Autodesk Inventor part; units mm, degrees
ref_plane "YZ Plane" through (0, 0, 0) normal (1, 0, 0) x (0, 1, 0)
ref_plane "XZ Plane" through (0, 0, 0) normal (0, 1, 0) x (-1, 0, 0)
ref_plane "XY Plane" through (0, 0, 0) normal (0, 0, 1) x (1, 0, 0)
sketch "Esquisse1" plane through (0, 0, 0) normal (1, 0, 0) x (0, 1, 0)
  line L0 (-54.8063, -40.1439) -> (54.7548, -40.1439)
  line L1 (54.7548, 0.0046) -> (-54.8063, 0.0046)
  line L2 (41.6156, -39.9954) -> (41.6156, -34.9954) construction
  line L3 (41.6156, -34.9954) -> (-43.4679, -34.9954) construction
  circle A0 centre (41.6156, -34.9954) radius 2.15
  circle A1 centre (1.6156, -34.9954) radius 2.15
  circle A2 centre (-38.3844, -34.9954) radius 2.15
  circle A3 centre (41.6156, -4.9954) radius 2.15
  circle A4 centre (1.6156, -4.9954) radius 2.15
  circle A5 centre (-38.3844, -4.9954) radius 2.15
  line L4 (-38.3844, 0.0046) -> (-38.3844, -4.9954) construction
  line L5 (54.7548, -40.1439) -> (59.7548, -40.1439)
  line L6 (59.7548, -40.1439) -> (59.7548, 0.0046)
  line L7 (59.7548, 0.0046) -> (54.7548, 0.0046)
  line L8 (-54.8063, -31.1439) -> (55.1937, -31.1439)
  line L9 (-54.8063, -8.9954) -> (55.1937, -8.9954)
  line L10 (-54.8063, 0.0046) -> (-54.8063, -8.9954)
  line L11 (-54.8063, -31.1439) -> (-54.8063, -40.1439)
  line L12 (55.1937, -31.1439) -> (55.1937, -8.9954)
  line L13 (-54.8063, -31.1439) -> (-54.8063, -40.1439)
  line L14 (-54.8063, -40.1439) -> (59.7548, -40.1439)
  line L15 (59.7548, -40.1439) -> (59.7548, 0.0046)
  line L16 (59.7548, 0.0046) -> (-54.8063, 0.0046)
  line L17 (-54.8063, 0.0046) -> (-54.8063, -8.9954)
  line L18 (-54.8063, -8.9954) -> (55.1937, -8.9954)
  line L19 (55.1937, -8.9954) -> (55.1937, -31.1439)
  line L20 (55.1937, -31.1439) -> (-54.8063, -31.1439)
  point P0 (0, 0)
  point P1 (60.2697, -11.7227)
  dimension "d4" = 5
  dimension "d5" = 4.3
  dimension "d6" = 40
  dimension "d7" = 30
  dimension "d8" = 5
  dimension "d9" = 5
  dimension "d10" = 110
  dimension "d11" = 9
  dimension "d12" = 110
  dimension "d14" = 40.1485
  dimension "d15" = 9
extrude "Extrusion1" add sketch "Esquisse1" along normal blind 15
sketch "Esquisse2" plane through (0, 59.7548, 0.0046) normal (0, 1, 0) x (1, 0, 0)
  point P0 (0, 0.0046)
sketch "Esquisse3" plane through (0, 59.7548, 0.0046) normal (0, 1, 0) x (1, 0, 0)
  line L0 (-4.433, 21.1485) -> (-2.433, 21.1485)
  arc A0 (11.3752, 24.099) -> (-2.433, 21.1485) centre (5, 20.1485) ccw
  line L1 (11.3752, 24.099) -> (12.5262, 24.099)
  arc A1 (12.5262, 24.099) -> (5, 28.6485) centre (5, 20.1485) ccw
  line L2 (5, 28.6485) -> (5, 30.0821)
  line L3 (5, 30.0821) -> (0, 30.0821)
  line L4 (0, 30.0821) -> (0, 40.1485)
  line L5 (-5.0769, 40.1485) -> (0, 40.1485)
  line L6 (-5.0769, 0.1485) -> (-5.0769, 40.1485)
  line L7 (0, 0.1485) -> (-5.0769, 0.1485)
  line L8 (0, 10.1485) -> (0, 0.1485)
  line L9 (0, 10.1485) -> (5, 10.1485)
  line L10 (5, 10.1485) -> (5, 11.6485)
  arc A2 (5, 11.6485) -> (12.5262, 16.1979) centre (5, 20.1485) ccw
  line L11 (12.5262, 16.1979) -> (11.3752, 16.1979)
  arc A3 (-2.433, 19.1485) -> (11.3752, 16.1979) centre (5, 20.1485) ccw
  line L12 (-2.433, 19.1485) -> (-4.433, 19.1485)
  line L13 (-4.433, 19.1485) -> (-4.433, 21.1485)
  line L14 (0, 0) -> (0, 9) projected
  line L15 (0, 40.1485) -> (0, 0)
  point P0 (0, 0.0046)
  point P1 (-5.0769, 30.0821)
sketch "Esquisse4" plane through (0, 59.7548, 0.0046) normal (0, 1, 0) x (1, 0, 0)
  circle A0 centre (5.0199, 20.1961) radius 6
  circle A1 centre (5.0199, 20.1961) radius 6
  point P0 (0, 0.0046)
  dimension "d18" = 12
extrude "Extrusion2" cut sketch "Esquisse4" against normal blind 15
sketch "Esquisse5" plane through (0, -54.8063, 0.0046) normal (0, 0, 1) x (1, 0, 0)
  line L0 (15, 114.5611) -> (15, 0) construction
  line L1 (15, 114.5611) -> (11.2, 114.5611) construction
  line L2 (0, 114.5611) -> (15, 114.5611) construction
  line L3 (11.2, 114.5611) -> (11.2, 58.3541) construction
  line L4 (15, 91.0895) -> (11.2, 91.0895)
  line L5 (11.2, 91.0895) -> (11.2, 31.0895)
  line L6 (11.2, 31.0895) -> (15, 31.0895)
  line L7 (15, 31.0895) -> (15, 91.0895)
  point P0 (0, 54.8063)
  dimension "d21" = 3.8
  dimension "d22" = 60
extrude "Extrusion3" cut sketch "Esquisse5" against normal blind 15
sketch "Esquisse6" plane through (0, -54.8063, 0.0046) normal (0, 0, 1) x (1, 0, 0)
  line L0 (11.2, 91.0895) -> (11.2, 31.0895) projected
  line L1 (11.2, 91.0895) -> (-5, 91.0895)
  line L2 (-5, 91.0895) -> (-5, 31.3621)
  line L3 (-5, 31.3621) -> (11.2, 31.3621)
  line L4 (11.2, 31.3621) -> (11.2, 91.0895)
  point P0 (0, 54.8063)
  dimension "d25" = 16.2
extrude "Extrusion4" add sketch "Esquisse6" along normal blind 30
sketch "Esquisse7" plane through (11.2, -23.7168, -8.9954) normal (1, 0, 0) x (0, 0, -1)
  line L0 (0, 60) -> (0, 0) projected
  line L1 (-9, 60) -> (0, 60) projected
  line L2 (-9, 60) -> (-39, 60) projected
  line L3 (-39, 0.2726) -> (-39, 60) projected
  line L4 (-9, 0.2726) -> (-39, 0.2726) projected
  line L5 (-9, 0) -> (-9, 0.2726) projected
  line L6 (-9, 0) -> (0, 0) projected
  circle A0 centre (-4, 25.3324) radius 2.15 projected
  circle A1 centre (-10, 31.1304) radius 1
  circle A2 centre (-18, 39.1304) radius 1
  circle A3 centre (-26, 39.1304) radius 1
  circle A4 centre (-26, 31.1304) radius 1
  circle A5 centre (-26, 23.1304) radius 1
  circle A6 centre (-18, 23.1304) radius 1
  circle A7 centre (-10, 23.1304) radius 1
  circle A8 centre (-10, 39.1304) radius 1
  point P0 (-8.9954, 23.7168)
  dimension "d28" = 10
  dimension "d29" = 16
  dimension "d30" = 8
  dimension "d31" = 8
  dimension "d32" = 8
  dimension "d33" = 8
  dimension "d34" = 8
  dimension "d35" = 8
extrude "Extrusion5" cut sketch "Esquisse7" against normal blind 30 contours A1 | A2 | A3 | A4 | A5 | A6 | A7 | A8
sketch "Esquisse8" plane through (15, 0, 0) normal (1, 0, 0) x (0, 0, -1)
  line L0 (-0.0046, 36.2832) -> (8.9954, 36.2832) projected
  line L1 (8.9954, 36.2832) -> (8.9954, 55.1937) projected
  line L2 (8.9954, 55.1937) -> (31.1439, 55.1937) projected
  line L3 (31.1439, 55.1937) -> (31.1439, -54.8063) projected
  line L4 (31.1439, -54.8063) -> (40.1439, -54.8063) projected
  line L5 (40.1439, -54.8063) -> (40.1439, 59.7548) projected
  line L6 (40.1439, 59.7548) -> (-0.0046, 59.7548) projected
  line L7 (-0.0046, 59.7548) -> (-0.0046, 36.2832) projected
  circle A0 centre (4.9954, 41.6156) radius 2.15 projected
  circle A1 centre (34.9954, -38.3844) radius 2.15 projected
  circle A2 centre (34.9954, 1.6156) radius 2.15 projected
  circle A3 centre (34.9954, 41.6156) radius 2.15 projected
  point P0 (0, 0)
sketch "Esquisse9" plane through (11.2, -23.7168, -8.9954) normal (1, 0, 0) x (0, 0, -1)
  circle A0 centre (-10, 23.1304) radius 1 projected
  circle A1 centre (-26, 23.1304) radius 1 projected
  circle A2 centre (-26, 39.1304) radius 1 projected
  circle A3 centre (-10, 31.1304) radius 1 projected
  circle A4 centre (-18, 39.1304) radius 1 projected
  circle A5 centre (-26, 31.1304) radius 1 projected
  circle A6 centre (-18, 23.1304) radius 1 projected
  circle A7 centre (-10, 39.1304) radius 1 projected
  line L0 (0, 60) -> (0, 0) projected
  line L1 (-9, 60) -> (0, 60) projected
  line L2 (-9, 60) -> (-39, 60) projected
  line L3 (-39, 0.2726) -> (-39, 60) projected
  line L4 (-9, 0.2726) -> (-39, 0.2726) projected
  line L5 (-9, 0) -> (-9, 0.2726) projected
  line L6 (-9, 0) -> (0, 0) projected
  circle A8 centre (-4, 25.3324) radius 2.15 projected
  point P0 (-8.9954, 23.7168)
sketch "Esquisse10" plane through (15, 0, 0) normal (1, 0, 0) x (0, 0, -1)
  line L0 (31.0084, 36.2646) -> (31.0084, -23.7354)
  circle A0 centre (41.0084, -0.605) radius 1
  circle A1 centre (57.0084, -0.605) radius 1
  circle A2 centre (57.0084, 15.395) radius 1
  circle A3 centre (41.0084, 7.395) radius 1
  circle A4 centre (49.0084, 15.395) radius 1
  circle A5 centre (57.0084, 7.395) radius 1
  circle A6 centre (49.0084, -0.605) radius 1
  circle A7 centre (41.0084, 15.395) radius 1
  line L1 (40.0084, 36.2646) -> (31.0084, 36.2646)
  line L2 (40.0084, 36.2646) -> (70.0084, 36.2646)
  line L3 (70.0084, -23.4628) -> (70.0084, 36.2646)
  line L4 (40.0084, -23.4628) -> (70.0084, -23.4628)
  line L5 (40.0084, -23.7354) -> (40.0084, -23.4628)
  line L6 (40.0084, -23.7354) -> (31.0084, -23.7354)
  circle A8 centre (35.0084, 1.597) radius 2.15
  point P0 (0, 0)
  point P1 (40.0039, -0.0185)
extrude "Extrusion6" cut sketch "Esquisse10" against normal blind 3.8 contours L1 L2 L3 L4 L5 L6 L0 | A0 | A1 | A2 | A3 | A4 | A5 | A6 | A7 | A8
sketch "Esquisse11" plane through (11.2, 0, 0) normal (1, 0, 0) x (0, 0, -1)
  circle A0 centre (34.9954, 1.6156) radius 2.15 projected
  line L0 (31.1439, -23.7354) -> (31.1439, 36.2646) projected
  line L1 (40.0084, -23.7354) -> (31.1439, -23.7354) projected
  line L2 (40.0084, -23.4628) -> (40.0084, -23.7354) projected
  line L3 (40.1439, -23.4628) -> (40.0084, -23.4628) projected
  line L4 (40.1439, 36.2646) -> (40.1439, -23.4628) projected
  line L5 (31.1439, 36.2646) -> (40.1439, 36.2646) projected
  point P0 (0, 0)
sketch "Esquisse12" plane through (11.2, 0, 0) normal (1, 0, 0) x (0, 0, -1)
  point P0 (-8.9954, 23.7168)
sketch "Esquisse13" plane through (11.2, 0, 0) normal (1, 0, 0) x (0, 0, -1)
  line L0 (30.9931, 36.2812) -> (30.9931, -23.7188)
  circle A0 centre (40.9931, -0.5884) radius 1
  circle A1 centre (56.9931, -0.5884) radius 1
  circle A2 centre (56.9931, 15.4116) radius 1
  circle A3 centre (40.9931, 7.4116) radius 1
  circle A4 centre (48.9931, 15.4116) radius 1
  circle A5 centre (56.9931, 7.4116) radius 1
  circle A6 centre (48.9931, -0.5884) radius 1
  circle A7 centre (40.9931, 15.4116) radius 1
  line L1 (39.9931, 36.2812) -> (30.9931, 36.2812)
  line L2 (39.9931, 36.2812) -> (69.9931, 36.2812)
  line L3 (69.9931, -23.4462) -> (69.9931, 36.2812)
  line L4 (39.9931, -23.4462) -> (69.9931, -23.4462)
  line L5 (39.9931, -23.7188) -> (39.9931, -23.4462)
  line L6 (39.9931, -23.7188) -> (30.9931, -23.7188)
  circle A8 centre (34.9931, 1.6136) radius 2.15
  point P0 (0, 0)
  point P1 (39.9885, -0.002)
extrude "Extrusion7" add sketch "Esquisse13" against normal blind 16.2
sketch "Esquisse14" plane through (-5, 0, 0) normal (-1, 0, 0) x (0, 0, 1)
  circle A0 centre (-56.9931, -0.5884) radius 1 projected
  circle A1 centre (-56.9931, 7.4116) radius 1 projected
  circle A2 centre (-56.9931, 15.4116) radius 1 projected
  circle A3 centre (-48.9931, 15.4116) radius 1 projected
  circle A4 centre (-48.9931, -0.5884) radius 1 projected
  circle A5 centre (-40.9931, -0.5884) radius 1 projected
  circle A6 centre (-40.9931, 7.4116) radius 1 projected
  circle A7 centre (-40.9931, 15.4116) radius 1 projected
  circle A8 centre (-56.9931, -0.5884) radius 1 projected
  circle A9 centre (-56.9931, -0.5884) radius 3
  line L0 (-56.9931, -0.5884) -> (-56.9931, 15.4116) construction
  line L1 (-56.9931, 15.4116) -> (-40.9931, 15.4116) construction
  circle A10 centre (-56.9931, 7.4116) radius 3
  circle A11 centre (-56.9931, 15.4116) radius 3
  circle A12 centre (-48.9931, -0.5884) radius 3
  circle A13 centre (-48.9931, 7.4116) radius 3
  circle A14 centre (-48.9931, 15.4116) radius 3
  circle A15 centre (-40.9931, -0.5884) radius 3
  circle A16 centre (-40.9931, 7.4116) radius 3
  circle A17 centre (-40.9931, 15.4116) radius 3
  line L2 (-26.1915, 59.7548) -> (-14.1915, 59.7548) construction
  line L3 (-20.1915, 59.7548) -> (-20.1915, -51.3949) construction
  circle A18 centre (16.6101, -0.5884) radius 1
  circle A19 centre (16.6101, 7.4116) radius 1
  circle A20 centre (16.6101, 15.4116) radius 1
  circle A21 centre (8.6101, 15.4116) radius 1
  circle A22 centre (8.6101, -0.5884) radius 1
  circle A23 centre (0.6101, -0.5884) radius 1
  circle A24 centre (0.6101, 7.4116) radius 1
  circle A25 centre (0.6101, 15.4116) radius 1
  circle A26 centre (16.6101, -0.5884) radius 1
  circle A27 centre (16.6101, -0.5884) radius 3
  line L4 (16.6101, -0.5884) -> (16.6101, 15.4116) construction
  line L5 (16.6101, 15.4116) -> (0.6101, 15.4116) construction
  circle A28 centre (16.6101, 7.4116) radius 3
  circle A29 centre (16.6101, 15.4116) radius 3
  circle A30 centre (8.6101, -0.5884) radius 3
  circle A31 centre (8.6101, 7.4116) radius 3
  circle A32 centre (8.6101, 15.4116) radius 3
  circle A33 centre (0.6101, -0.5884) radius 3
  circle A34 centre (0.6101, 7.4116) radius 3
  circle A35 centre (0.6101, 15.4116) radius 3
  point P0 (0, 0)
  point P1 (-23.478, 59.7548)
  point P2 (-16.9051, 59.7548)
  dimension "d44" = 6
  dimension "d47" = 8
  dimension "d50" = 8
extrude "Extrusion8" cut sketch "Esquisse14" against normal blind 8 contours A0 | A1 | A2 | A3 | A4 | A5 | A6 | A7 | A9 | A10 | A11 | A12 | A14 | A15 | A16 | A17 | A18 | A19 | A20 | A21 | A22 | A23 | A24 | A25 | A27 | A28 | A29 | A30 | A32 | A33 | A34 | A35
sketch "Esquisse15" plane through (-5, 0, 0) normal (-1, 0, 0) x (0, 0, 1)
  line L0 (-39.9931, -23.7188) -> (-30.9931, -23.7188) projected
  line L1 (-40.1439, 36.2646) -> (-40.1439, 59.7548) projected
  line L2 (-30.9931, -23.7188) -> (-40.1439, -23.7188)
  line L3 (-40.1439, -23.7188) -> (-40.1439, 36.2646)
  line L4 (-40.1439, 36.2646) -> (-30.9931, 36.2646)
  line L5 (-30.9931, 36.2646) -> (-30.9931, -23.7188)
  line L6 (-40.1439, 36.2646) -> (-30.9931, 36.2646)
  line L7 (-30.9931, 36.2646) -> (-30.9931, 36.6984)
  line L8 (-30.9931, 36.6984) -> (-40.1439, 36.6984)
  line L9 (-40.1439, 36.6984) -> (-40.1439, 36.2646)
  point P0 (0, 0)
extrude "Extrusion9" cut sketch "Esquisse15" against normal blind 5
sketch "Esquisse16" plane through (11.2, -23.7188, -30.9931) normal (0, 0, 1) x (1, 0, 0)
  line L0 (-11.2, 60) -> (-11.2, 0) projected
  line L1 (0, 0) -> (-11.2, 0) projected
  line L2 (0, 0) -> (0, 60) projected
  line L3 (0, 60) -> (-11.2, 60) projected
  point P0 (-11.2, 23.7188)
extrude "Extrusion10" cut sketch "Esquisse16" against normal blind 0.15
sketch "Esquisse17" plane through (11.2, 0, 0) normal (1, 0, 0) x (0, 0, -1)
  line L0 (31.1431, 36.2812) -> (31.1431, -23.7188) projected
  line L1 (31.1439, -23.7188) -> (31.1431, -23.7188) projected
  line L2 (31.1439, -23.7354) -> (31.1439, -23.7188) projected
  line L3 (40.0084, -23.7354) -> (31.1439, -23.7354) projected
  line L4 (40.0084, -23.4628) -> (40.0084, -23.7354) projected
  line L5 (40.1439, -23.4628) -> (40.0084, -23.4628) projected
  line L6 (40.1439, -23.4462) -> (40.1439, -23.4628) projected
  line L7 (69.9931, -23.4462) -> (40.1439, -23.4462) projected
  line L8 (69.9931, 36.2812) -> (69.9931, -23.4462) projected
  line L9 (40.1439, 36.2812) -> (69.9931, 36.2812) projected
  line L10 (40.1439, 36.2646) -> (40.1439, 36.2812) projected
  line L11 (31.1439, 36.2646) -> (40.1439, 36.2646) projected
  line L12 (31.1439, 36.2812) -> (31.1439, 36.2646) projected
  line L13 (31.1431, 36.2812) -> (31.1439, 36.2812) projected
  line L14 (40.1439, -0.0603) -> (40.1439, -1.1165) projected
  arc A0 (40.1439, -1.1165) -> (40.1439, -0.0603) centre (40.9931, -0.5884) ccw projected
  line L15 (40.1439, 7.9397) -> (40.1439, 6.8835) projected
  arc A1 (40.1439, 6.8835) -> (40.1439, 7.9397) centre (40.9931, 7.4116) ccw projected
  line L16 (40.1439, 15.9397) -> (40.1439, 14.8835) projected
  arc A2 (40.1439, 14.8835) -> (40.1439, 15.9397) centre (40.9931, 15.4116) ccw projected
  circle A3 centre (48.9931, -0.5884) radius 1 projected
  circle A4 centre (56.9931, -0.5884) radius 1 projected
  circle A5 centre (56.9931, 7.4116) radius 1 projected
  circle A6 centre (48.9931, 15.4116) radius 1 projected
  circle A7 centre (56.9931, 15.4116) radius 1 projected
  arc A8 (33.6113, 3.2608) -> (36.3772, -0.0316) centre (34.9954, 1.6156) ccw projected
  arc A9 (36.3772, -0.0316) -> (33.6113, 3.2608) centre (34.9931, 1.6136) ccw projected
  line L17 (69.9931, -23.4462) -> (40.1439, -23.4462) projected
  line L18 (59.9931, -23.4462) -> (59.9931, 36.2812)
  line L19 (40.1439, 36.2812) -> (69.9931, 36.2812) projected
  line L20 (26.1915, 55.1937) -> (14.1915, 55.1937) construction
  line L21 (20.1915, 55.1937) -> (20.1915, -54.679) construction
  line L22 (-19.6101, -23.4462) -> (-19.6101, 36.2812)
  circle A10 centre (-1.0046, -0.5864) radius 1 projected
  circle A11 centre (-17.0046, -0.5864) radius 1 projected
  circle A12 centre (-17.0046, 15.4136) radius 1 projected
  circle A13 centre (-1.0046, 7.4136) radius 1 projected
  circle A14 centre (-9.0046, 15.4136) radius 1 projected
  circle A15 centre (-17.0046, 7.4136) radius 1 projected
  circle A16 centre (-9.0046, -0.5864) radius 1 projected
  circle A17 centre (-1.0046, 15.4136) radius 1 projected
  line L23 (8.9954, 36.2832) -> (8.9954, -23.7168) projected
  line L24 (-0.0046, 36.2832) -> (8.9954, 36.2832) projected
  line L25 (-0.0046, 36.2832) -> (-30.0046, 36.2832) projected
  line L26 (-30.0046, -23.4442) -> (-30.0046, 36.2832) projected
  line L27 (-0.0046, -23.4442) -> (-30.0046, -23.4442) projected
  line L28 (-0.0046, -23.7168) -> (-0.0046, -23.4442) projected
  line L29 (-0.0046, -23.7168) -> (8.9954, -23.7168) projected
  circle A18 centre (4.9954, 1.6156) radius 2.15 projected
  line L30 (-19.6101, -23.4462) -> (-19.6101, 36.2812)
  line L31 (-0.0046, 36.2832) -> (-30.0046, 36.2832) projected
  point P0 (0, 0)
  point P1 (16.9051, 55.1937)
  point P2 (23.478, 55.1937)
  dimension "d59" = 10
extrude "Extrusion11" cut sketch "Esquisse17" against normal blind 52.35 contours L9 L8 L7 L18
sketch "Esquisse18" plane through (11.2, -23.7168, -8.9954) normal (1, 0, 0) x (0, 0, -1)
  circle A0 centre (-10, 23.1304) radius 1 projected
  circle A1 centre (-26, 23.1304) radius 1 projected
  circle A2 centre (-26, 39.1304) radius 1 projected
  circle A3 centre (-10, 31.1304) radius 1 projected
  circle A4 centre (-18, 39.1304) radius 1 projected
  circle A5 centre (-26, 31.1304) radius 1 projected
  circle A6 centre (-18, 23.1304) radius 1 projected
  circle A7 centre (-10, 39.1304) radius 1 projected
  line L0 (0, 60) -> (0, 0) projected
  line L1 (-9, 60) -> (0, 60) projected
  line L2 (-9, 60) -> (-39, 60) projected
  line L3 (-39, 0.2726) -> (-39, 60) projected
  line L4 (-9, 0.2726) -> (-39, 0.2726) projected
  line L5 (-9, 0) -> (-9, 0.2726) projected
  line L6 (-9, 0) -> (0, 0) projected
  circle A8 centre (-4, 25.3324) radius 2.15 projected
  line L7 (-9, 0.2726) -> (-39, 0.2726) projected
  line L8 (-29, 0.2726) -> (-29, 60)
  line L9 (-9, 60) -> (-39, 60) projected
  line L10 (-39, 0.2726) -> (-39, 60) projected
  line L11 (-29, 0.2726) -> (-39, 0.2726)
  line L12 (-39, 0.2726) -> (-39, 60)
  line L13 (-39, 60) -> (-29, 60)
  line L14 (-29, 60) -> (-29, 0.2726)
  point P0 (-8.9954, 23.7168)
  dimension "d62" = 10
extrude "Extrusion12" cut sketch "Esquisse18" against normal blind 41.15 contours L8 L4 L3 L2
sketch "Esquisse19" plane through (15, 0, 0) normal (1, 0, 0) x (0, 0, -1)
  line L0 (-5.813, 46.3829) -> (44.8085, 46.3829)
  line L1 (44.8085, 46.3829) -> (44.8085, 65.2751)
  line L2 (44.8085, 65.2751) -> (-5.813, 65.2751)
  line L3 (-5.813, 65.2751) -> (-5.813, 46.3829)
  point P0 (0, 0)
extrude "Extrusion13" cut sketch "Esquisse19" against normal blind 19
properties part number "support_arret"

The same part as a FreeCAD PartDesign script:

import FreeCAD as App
import Part
import Sketcher

doc = App.newDocument("Part")
params = doc.addObject("Spreadsheet::Sheet", "Params")
for row, (alias, value) in enumerate([
    ("sketch1_diameter", "4.3 mm"),
    ("sketch1_width", "110 mm"),
    ("sketch1_height", "9 mm"),
    ("pad1_length", "15 mm"),
    ("sketch2_diameter", "12 mm"),
    ("pocket1_length", "15 mm"),
    ("sketch3_height", "60 mm"),
    ("sketch3_width", "3.8 mm"),
    ("pocket2_length", "15 mm"),
    ("sketch4_width", "16.2 mm"),
    ("pad2_length", "30 mm"),
    ("sketch5_diameter", "2 mm"),
    ("pocket3_length", "30 mm"),
    ("sketch6_width", "60 mm"),
    ("sketch6_height", "9 mm"),
    ("sketch6_height2", "30 mm"),
    ("pocket4_length", "3.8 mm"),
    ("sketch7_diameter", "2 mm"),
    ("sketch7_diameter2", "4.3 mm"),
    ("sketch7_width", "60 mm"),
    ("sketch7_height", "39 mm"),
    ("sketch7_height2", "9 mm"),
    ("pad3_length", "16.2 mm"),
    ("sketch8_diameter", "6 mm"),
    ("pocket5_length", "8 mm"),
    ("pocket6_length", "5 mm"),
    ("sketch10_height", "60 mm"),
    ("sketch10_width", "11.2 mm"),
    ("pocket7_length", "0.15 mm"),
    ("sketch11_height", "10 mm"),
    ("pocket8_length", "52.35 mm"),
    ("sketch12_height", "10 mm"),
    ("pocket9_length", "41.15 mm"),
    ("pocket10_length", "19 mm"),
], start=1):
    params.set(f"A{row}", alias)
    params.set(f"B{row}", "=" + value)
    params.setAlias(f"B{row}", alias)

body = doc.addObject("PartDesign::Body", "Body")
body.AllowCompound = True

sketch1 = body.newObject("Sketcher::SketchObject", "Sketch")
sketch1.AttachmentSupport = (doc.getObject("YZ_Plane"), [""])
sketch1.MapMode = "FlatFace"
sketch1.addGeometry(Part.LineSegment(App.Vector(-54.8063, -31.1439, 0), App.Vector(-54.8063, -40.1439, 0)), False)
sketch1.addGeometry(Part.LineSegment(App.Vector(-54.8063, -40.1439, 0), App.Vector(59.7548, -40.1439, 0)), False)
sketch1.addGeometry(Part.LineSegment(App.Vector(59.7548, -40.1439, 0), App.Vector(59.7548, 0.0046, 0)), False)
sketch1.addGeometry(Part.LineSegment(App.Vector(59.7548, 0.0046, 0), App.Vector(-54.8063, 0.0046, 0)), False)
sketch1.addGeometry(Part.LineSegment(App.Vector(-54.8063, 0.0046, 0), App.Vector(-54.8063, -8.9954, 0)), False)
sketch1.addGeometry(Part.LineSegment(App.Vector(-54.8063, -8.9954, 0), App.Vector(55.1937, -8.9954, 0)), False)
sketch1.addGeometry(Part.LineSegment(App.Vector(55.1937, -8.9954, 0), App.Vector(55.1937, -31.1439, 0)), False)
sketch1.addGeometry(Part.LineSegment(App.Vector(55.1937, -31.1439, 0), App.Vector(-54.8063, -31.1439, 0)), False)
sketch1.addGeometry(Part.Circle(App.Vector(-38.3844, -34.9954, 0), App.Vector(0, 0, 1), 2.15), False)
sketch1.addGeometry(Part.Circle(App.Vector(1.6156, -34.9954, 0), App.Vector(0, 0, 1), 2.15), False)
sketch1.addGeometry(Part.Circle(App.Vector(41.6156, -34.9954, 0), App.Vector(0, 0, 1), 2.15), False)
sketch1.addGeometry(Part.Circle(App.Vector(-38.3844, -4.9954, 0), App.Vector(0, 0, 1), 2.15), False)
sketch1.addGeometry(Part.Circle(App.Vector(1.6156, -4.9954, 0), App.Vector(0, 0, 1), 2.15), False)
sketch1.addGeometry(Part.Circle(App.Vector(41.6156, -4.9954, 0), App.Vector(0, 0, 1), 2.15), False)
sketch1.addConstraint(Sketcher.Constraint("Coincident", 0, 2, 1, 1))
sketch1.addConstraint(Sketcher.Constraint("Coincident", 1, 2, 2, 1))
sketch1.addConstraint(Sketcher.Constraint("Coincident", 2, 2, 3, 1))
sketch1.addConstraint(Sketcher.Constraint("Coincident", 3, 2, 4, 1))
sketch1.addConstraint(Sketcher.Constraint("Coincident", 4, 2, 5, 1))
sketch1.addConstraint(Sketcher.Constraint("Coincident", 5, 2, 6, 1))
sketch1.addConstraint(Sketcher.Constraint("Coincident", 6, 2, 7, 1))
sketch1.addConstraint(Sketcher.Constraint("Coincident", 7, 2, 0, 1))
sketch1.addConstraint(Sketcher.Constraint("Vertical", 0))
sketch1.addConstraint(Sketcher.Constraint("Horizontal", 1))
sketch1.addConstraint(Sketcher.Constraint("Vertical", 2))
sketch1.addConstraint(Sketcher.Constraint("Horizontal", 3))
sketch1.addConstraint(Sketcher.Constraint("Vertical", 4))
sketch1.addConstraint(Sketcher.Constraint("Horizontal", 5))
sketch1.addConstraint(Sketcher.Constraint("Vertical", 6))
sketch1.addConstraint(Sketcher.Constraint("Horizontal", 7))
sketch1.addConstraint(Sketcher.Constraint("Equal", 8, 9))
sketch1.addConstraint(Sketcher.Constraint("Equal", 9, 10))
sketch1.addConstraint(Sketcher.Constraint("Equal", 10, 11))
sketch1.addConstraint(Sketcher.Constraint("Equal", 11, 12))
sketch1.addConstraint(Sketcher.Constraint("Equal", 12, 13))
sketch1.addConstraint(Sketcher.Constraint("Horizontal", 8, 3, 9, 3))
sketch1.addConstraint(Sketcher.Constraint("Horizontal", 9, 3, 10, 3))
sketch1.addConstraint(Sketcher.Constraint("Horizontal", 11, 3, 12, 3))
sketch1.addConstraint(Sketcher.Constraint("Horizontal", 12, 3, 13, 3))
sketch1.addConstraint(Sketcher.Constraint("Vertical", 8, 3, 11, 3))
sketch1.addConstraint(Sketcher.Constraint("Vertical", 9, 3, 12, 3))
sketch1.addConstraint(Sketcher.Constraint("Vertical", 10, 3, 13, 3))
sketch1.addConstraint(Sketcher.Constraint("Vertical", 0, 2, 3, 2))
sketch1.addConstraint(Sketcher.Constraint("Equal", 0, 4))
sketch1.addConstraint(Sketcher.Constraint("Diameter", 8, 4.3))
sketch1.addConstraint(Sketcher.Constraint("DistanceX", 5, 1, 5, 2, 110.0))
sketch1.addConstraint(Sketcher.Constraint("DistanceY", 0, 2, 0, 1, 9.0))
sketch1.addConstraint(Sketcher.Constraint("DistanceX", 8, 3, 9, 3, 40.0))
sketch1.addConstraint(Sketcher.Constraint("DistanceX", 9, 3, 10, 3, 40.0))
sketch1.addConstraint(Sketcher.Constraint("DistanceY", 8, 3, 11, 3, 30.0))
sketch1.addConstraint(Sketcher.Constraint("DistanceY", 13, 3, 2, 2, 5.0))
sketch1.addConstraint(Sketcher.Constraint("DistanceY", 2, 1, 2, 2, 40.1485))
sketch1.addConstraint(Sketcher.Constraint("DistanceX", 1, 1, 1, 2, 114.561))
sketch1.addConstraint(Sketcher.Constraint("DistanceY", 0, 2, -1, 1, 40.144))
sketch1.addConstraint(Sketcher.Constraint("DistanceX", 0, 2, 8, 3, 16.422))
sketch1.addConstraint(Sketcher.Constraint("DistanceX", 8, 3, -1, 1, 38.3844))
sketch1.setExpression("Constraints[30]", "Params.sketch1_diameter")
sketch1.setExpression("Constraints[31]", "Params.sketch1_width")
sketch1.setExpression("Constraints[32]", "Params.sketch1_height")
pad1 = body.newObject("PartDesign::Pad", "Pad")
pad1.Profile = sketch1
pad1.setExpression("Length", "Params.pad1_length")

sketch2 = body.newObject("Sketcher::SketchObject", "Sketch001")
sketch2.AttachmentSupport = (doc.getObject("XZ_Plane"), [""])
sketch2.MapMode = "FlatFace"
sketch2.AttachmentOffset = App.Placement(App.Vector(0, 0, -59.7548), App.Rotation())
sketch2.addGeometry(Part.Circle(App.Vector(5.0199, -20.1915, 0), App.Vector(0, 0, 1), 6), False)
sketch2.addConstraint(Sketcher.Constraint("Diameter", 0, 12.0))
sketch2.addConstraint(Sketcher.Constraint("DistanceX", -1, 1, 0, 3, 5.02))
sketch2.addConstraint(Sketcher.Constraint("DistanceY", 0, 3, -1, 1, 20.1915))
sketch2.setExpression("Constraints[0]", "Params.sketch2_diameter")
pocket1 = body.newObject("PartDesign::Pocket", "Pocket")
pocket1.Profile = sketch2
pocket1.setExpression("Length", "Params.pocket1_length")
pocket1.Reversed = True

sketch3 = body.newObject("Sketcher::SketchObject", "Sketch002")
sketch3.AttachmentSupport = (doc.getObject("XY_Plane"), [""])
sketch3.MapMode = "FlatFace"
sketch3.AttachmentOffset = App.Placement(App.Vector(0, 0, 0.0046), App.Rotation())
sketch3.addGeometry(Part.LineSegment(App.Vector(15, -23.7168, 0), App.Vector(15, 36.2832, 0)), False)
sketch3.addGeometry(Part.LineSegment(App.Vector(15, 36.2832, 0), App.Vector(11.2, 36.2832, 0)), False)
sketch3.addGeometry(Part.LineSegment(App.Vector(11.2, 36.2832, 0), App.Vector(11.2, -23.7168, 0)), False)
sketch3.addGeometry(Part.LineSegment(App.Vector(11.2, -23.7168, 0), App.Vector(15, -23.7168, 0)), False)
sketch3.addConstraint(Sketcher.Constraint("Coincident", 0, 2, 1, 1))
sketch3.addConstraint(Sketcher.Constraint("Coincident", 1, 2, 2, 1))
sketch3.addConstraint(Sketcher.Constraint("Coincident", 2, 2, 3, 1))
sketch3.addConstraint(Sketcher.Constraint("Coincident", 3, 2, 0, 1))
sketch3.addConstraint(Sketcher.Constraint("Vertical", 0))
sketch3.addConstraint(Sketcher.Constraint("Horizontal", 1))
sketch3.addConstraint(Sketcher.Constraint("Vertical", 2))
sketch3.addConstraint(Sketcher.Constraint("Horizontal", 3))
sketch3.addConstraint(Sketcher.Constraint("DistanceY", 0, 1, 0, 2, 60.0))
sketch3.addConstraint(Sketcher.Constraint("DistanceX", 1, 2, 1, 1, 3.8))
sketch3.addConstraint(Sketcher.Constraint("DistanceX", -1, 1, 0, 2, 15.0))
sketch3.addConstraint(Sketcher.Constraint("DistanceY", -1, 1, 0, 2, 36.2832))
sketch3.setExpression("Constraints[8]", "Params.sketch3_height")
sketch3.setExpression("Constraints[9]", "Params.sketch3_width")
pocket2 = body.newObject("PartDesign::Pocket", "Pocket001")
pocket2.Profile = sketch3
pocket2.setExpression("Length", "Params.pocket2_length")

sketch4 = body.newObject("Sketcher::SketchObject", "Sketch003")
sketch4.AttachmentSupport = (doc.getObject("XY_Plane"), [""])
sketch4.MapMode = "FlatFace"
sketch4.AttachmentOffset = App.Placement(App.Vector(0, 0, 0.0046), App.Rotation())
sketch4.addGeometry(Part.LineSegment(App.Vector(11.2, -23.4442, 0), App.Vector(11.2, 36.2832, 0)), False)
sketch4.addGeometry(Part.LineSegment(App.Vector(11.2, 36.2832, 0), App.Vector(-5, 36.2832, 0)), False)
sketch4.addGeometry(Part.LineSegment(App.Vector(-5, 36.2832, 0), App.Vector(-5, -23.4442, 0)), False)
sketch4.addGeometry(Part.LineSegment(App.Vector(-5, -23.4442, 0), App.Vector(11.2, -23.4442, 0)), False)
sketch4.addConstraint(Sketcher.Constraint("Coincident", 0, 2, 1, 1))
sketch4.addConstraint(Sketcher.Constraint("Coincident", 1, 2, 2, 1))
sketch4.addConstraint(Sketcher.Constraint("Coincident", 2, 2, 3, 1))
sketch4.addConstraint(Sketcher.Constraint("Coincident", 3, 2, 0, 1))
sketch4.addConstraint(Sketcher.Constraint("Vertical", 0))
sketch4.addConstraint(Sketcher.Constraint("Horizontal", 1))
sketch4.addConstraint(Sketcher.Constraint("Vertical", 2))
sketch4.addConstraint(Sketcher.Constraint("Horizontal", 3))
sketch4.addConstraint(Sketcher.Constraint("DistanceX", 1, 2, 1, 1, 16.2))
sketch4.addConstraint(Sketcher.Constraint("DistanceX", 1, 2, -1, 1, 5.0))
sketch4.addConstraint(Sketcher.Constraint("DistanceY", 0, 1, 0, 2, 59.7274))
sketch4.addConstraint(Sketcher.Constraint("DistanceY", -1, 1, 0, 2, 36.2832))
sketch4.setExpression("Constraints[8]", "Params.sketch4_width")
pad2 = body.newObject("PartDesign::Pad", "Pad001")
pad2.Profile = sketch4
pad2.setExpression("Length", "Params.pad2_length")

sketch5 = body.newObject("Sketcher::SketchObject", "Sketch004")
sketch5.AttachmentSupport = (doc.getObject("YZ_Plane"), [""])
sketch5.MapMode = "FlatFace"
sketch5.AttachmentOffset = App.Placement(App.Vector(0, 0, 11.2), App.Rotation())
sketch5.addGeometry(Part.Circle(App.Vector(7.4136, 1.0046, 0), App.Vector(0, 0, 1), 1), False)
sketch5.addGeometry(Part.Circle(App.Vector(15.4136, 9.0046, 0), App.Vector(0, 0, 1), 1), False)
sketch5.addGeometry(Part.Circle(App.Vector(15.4136, 17.0046, 0), App.Vector(0, 0, 1), 1), False)
sketch5.addGeometry(Part.Circle(App.Vector(7.4136, 17.0046, 0), App.Vector(0, 0, 1), 1), False)
sketch5.addGeometry(Part.Circle(App.Vector(-0.5864, 17.0046, 0), App.Vector(0, 0, 1), 1), False)
sketch5.addGeometry(Part.Circle(App.Vector(-0.5864, 9.0046, 0), App.Vector(0, 0, 1), 1), False)
sketch5.addGeometry(Part.Circle(App.Vector(-0.5864, 1.0046, 0), App.Vector(0, 0, 1), 1), False)
sketch5.addGeometry(Part.Circle(App.Vector(15.4136, 1.0046, 0), App.Vector(0, 0, 1), 1), False)
sketch5.addConstraint(Sketcher.Constraint("Equal", 0, 1))
sketch5.addConstraint(Sketcher.Constraint("Equal", 1, 2))
sketch5.addConstraint(Sketcher.Constraint("Equal", 2, 3))
sketch5.addConstraint(Sketcher.Constraint("Equal", 3, 4))
sketch5.addConstraint(Sketcher.Constraint("Equal", 4, 5))
sketch5.addConstraint(Sketcher.Constraint("Equal", 5, 6))
sketch5.addConstraint(Sketcher.Constraint("Equal", 6, 7))
sketch5.addConstraint(Sketcher.Constraint("Horizontal", 2, 3, 3, 3))
sketch5.addConstraint(Sketcher.Constraint("Horizontal", 3, 3, 4, 3))
sketch5.addConstraint(Sketcher.Constraint("Horizontal", 1, 3, 5, 3))
sketch5.addConstraint(Sketcher.Constraint("Horizontal", 0, 3, 6, 3))
sketch5.addConstraint(Sketcher.Constraint("Horizontal", 6, 3, 7, 3))
sketch5.addConstraint(Sketcher.Constraint("Vertical", 1, 3, 2, 3))
sketch5.addConstraint(Sketcher.Constraint("Vertical", 0, 3, 3, 3))
sketch5.addConstraint(Sketcher.Constraint("Vertical", 4, 3, 5, 3))
sketch5.addConstraint(Sketcher.Constraint("Vertical", 5, 3, 6, 3))
sketch5.addConstraint(Sketcher.Constraint("Vertical", 2, 3, 7, 3))
sketch5.addConstraint(Sketcher.Constraint("Diameter", 0, 2.0))
sketch5.addConstraint(Sketcher.Constraint("DistanceX", 0, 3, 1, 3, 8.0))
sketch5.addConstraint(Sketcher.Constraint("DistanceY", 0, 3, 1, 3, 8.0))
sketch5.addConstraint(Sketcher.Constraint("DistanceY", 1, 3, 2, 3, 8.0))
sketch5.addConstraint(Sketcher.Constraint("DistanceX", 4, 3, 3, 3, 8.0))
sketch5.addConstraint(Sketcher.Constraint("DistanceX", -1, 1, 0, 3, 7.4136))
sketch5.addConstraint(Sketcher.Constraint("DistanceY", -1, 1, 0, 3, 1.0046))
sketch5.setExpression("Constraints[17]", "Params.sketch5_diameter")
pocket3 = body.newObject("PartDesign::Pocket", "Pocket002")
pocket3.Profile = sketch5
pocket3.setExpression("Length", "Params.pocket3_length")

sketch6 = body.newObject("Sketcher::SketchObject", "Sketch005")
sketch6.AttachmentSupport = (doc.getObject("YZ_Plane"), [""])
sketch6.MapMode = "FlatFace"
sketch6.AttachmentOffset = App.Placement(App.Vector(0, 0, 15), App.Rotation())
sketch6.addGeometry(Part.LineSegment(App.Vector(36.2646, -31.0084, 0), App.Vector(-23.7354, -31.0084, 0)), False)
sketch6.addGeometry(Part.LineSegment(App.Vector(-23.7354, -31.0084, 0), App.Vector(-23.7354, -40.0084, 0)), False)
sketch6.addGeometry(Part.LineSegment(App.Vector(-23.7354, -40.0084, 0), App.Vector(-23.4628, -40.0084, 0)), False)
sketch6.addGeometry(Part.LineSegment(App.Vector(-23.4628, -40.0084, 0), App.Vector(-23.4628, -70.0084, 0)), False)
sketch6.addGeometry(Part.LineSegment(App.Vector(-23.4628, -70.0084, 0), App.Vector(36.2646, -70.0084, 0)), False)
sketch6.addGeometry(Part.LineSegment(App.Vector(36.2646, -70.0084, 0), App.Vector(36.2646, -31.0084, 0)), False)
sketch6.addConstraint(Sketcher.Constraint("Coincident", 0, 2, 1, 1))
sketch6.addConstraint(Sketcher.Constraint("Coincident", 1, 2, 2, 1))
sketch6.addConstraint(Sketcher.Constraint("Coincident", 2, 2, 3, 1))
sketch6.addConstraint(Sketcher.Constraint("Coincident", 3, 2, 4, 1))
sketch6.addConstraint(Sketcher.Constraint("Coincident", 4, 2, 5, 1))
sketch6.addConstraint(Sketcher.Constraint("Coincident", 5, 2, 0, 1))
sketch6.addConstraint(Sketcher.Constraint("Horizontal", 0))
sketch6.addConstraint(Sketcher.Constraint("Vertical", 1))
sketch6.addConstraint(Sketcher.Constraint("Horizontal", 2))
sketch6.addConstraint(Sketcher.Constraint("Vertical", 3))
sketch6.addConstraint(Sketcher.Constraint("Horizontal", 4))
sketch6.addConstraint(Sketcher.Constraint("Vertical", 5))
sketch6.addConstraint(Sketcher.Constraint("DistanceX", 0, 2, 0, 1, 60.0))
sketch6.addConstraint(Sketcher.Constraint("DistanceY", 1, 2, 1, 1, 9.0))
sketch6.addConstraint(Sketcher.Constraint("DistanceY", 3, 2, 3, 1, 30.0))
sketch6.addConstraint(Sketcher.Constraint("DistanceX", 2, 1, 2, 2, 0.2726))
sketch6.addConstraint(Sketcher.Constraint("DistanceX", 0, 2, -1, 1, 23.7354))
sketch6.addConstraint(Sketcher.Constraint("DistanceY", 0, 2, -1, 1, 31.0084))
sketch6.setExpression("Constraints[12]", "Params.sketch6_width")
sketch6.setExpression("Constraints[13]", "Params.sketch6_height")
sketch6.setExpression("Constraints[14]", "Params.sketch6_height2")
pocket4 = body.newObject("PartDesign::Pocket", "Pocket003")
pocket4.Profile = sketch6
pocket4.setExpression("Length", "Params.pocket4_length")

sketch7 = body.newObject("Sketcher::SketchObject", "Sketch006")
sketch7.AttachmentSupport = (doc.getObject("YZ_Plane"), [""])
sketch7.MapMode = "FlatFace"
sketch7.AttachmentOffset = App.Placement(App.Vector(0, 0, 11.2), App.Rotation())
sketch7.addGeometry(Part.LineSegment(App.Vector(36.2812, -69.9931, 0), App.Vector(36.2812, -30.9931, 0)), False)
sketch7.addGeometry(Part.LineSegment(App.Vector(36.2812, -30.9931, 0), App.Vector(-23.7188, -30.9931, 0)), False)
sketch7.addGeometry(Part.LineSegment(App.Vector(-23.7188, -30.9931, 0), App.Vector(-23.7188, -39.9931, 0)), False)
sketch7.addGeometry(Part.LineSegment(App.Vector(-23.7188, -39.9931, 0), App.Vector(-23.4462, -39.9931, 0)), False)
sketch7.addGeometry(Part.LineSegment(App.Vector(-23.4462, -39.9931, 0), App.Vector(-23.4462, -69.9931, 0)), False)
sketch7.addGeometry(Part.LineSegment(App.Vector(-23.4462, -69.9931, 0), App.Vector(36.2812, -69.9931, 0)), False)
sketch7.addGeometry(Part.Circle(App.Vector(1.6136, -34.9931, 0), App.Vector(0, 0, 1), 2.15), False)
sketch7.addGeometry(Part.Circle(App.Vector(-0.5884, -40.9931, 0), App.Vector(0, 0, 1), 1), False)
sketch7.addGeometry(Part.Circle(App.Vector(-0.5884, -48.9931, 0), App.Vector(0, 0, 1), 1), False)
sketch7.addGeometry(Part.Circle(App.Vector(-0.5884, -56.9931, 0), App.Vector(0, 0, 1), 1), False)
sketch7.addGeometry(Part.Circle(App.Vector(7.4116, -40.9931, 0), App.Vector(0, 0, 1), 1), False)
sketch7.addGeometry(Part.Circle(App.Vector(15.4116, -40.9931, 0), App.Vector(0, 0, 1), 1), False)
sketch7.addGeometry(Part.Circle(App.Vector(15.4116, -48.9931, 0), App.Vector(0, 0, 1), 1), False)
sketch7.addGeometry(Part.Circle(App.Vector(7.4116, -56.9931, 0), App.Vector(0, 0, 1), 1), False)
sketch7.addGeometry(Part.Circle(App.Vector(15.4116, -56.9931, 0), App.Vector(0, 0, 1), 1), False)
sketch7.addConstraint(Sketcher.Constraint("Coincident", 0, 2, 1, 1))
sketch7.addConstraint(Sketcher.Constraint("Coincident", 1, 2, 2, 1))
sketch7.addConstraint(Sketcher.Constraint("Coincident", 2, 2, 3, 1))
sketch7.addConstraint(Sketcher.Constraint("Coincident", 3, 2, 4, 1))
sketch7.addConstraint(Sketcher.Constraint("Coincident", 4, 2, 5, 1))
sketch7.addConstraint(Sketcher.Constraint("Coincident", 5, 2, 0, 1))
sketch7.addConstraint(Sketcher.Constraint("Vertical", 0))
sketch7.addConstraint(Sketcher.Constraint("Horizontal", 1))
sketch7.addConstraint(Sketcher.Constraint("Vertical", 2))
sketch7.addConstraint(Sketcher.Constraint("Horizontal", 3))
sketch7.addConstraint(Sketcher.Constraint("Vertical", 4))
sketch7.addConstraint(Sketcher.Constraint("Horizontal", 5))
sketch7.addConstraint(Sketcher.Constraint("Equal", 7, 8))
sketch7.addConstraint(Sketcher.Constraint("Equal", 8, 9))
sketch7.addConstraint(Sketcher.Constraint("Equal", 9, 10))
sketch7.addConstraint(Sketcher.Constraint("Equal", 10, 11))
sketch7.addConstraint(Sketcher.Constraint("Equal", 11, 12))
sketch7.addConstraint(Sketcher.Constraint("Equal", 12, 13))
sketch7.addConstraint(Sketcher.Constraint("Equal", 13, 14))
sketch7.addConstraint(Sketcher.Constraint("Horizontal", 7, 3, 10, 3))
sketch7.addConstraint(Sketcher.Constraint("Horizontal", 10, 3, 11, 3))
sketch7.addConstraint(Sketcher.Constraint("Horizontal", 8, 3, 12, 3))
sketch7.addConstraint(Sketcher.Constraint("Horizontal", 9, 3, 13, 3))
sketch7.addConstraint(Sketcher.Constraint("Horizontal", 13, 3, 14, 3))
sketch7.addConstraint(Sketcher.Constraint("Vertical", 7, 3, 8, 3))
sketch7.addConstraint(Sketcher.Constraint("Vertical", 8, 3, 9, 3))
sketch7.addConstraint(Sketcher.Constraint("Vertical", 11, 3, 12, 3))
sketch7.addConstraint(Sketcher.Constraint("Vertical", 10, 3, 13, 3))
sketch7.addConstraint(Sketcher.Constraint("Vertical", 12, 3, 14, 3))
sketch7.addConstraint(Sketcher.Constraint("Diameter", 7, 2.0))
sketch7.addConstraint(Sketcher.Constraint("Diameter", 6, 4.3))
sketch7.addConstraint(Sketcher.Constraint("DistanceX", 1, 2, 1, 1, 60.0))
sketch7.addConstraint(Sketcher.Constraint("DistanceY", 0, 1, 0, 2, 39.0))
sketch7.addConstraint(Sketcher.Constraint("DistanceY", 2, 2, 2, 1, 9.0))
sketch7.addConstraint(Sketcher.Constraint("DistanceY", 7, 3, 6, 3, 6.0))
sketch7.addConstraint(Sketcher.Constraint("DistanceY", 8, 3, 7, 3, 8.0))
sketch7.addConstraint(Sketcher.Constraint("DistanceY", 9, 3, 8, 3, 8.0))
sketch7.addConstraint(Sketcher.Constraint("DistanceX", 7, 3, 10, 3, 8.0))
sketch7.addConstraint(Sketcher.Constraint("DistanceX", 10, 3, 11, 3, 8.0))
sketch7.addConstraint(Sketcher.Constraint("DistanceY", 11, 3, 0, 2, 10.0))
sketch7.addConstraint(Sketcher.Constraint("DistanceX", 3, 1, 3, 2, 0.2726))
sketch7.addConstraint(Sketcher.Constraint("DistanceY", 6, 3, -1, 1, 34.993))
sketch7.addConstraint(Sketcher.Constraint("DistanceX", 7, 3, 6, 3, 2.202))
sketch7.addConstraint(Sketcher.Constraint("DistanceX", -1, 1, 6, 3, 1.6136))
sketch7.addConstraint(Sketcher.Constraint("DistanceX", -1, 1, 0, 2, 36.2812))
sketch7.setExpression("Constraints[29]", "Params.sketch7_diameter")
sketch7.setExpression("Constraints[30]", "Params.sketch7_diameter2")
sketch7.setExpression("Constraints[31]", "Params.sketch7_width")
sketch7.setExpression("Constraints[32]", "Params.sketch7_height")
sketch7.setExpression("Constraints[33]", "Params.sketch7_height2")
pad3 = body.newObject("PartDesign::Pad", "Pad002")
pad3.Profile = sketch7
pad3.setExpression("Length", "Params.pad3_length")
pad3.Reversed = True

sketch8 = body.newObject("Sketcher::SketchObject", "Sketch007")
sketch8.AttachmentSupport = (doc.getObject("YZ_Plane"), [""])
sketch8.MapMode = "FlatFace"
sketch8.AttachmentOffset = App.Placement(App.Vector(0, 0, -5), App.Rotation())
sketch8.addGeometry(Part.Circle(App.Vector(-0.5884, -56.9931, 0), App.Vector(0, 0, 1), 3), False)
sketch8.addGeometry(Part.Circle(App.Vector(7.4116, -56.9931, 0), App.Vector(0, 0, 1), 3), False)
sketch8.addGeometry(Part.Circle(App.Vector(15.4116, -56.9931, 0), App.Vector(0, 0, 1), 3), False)
sketch8.addGeometry(Part.Circle(App.Vector(15.4116, -48.9931, 0), App.Vector(0, 0, 1), 3), False)
sketch8.addGeometry(Part.Circle(App.Vector(-0.5884, -48.9931, 0), App.Vector(0, 0, 1), 3), False)
sketch8.addGeometry(Part.Circle(App.Vector(-0.5884, -40.9931, 0), App.Vector(0, 0, 1), 3), False)
sketch8.addGeometry(Part.Circle(App.Vector(7.4116, -40.9931, 0), App.Vector(0, 0, 1), 3), False)
sketch8.addGeometry(Part.Circle(App.Vector(15.4116, -40.9931, 0), App.Vector(0, 0, 1), 3), False)
sketch8.addGeometry(Part.Circle(App.Vector(-0.5884, 16.6101, 0), App.Vector(0, 0, 1), 3), False)
sketch8.addGeometry(Part.Circle(App.Vector(7.4116, 16.6101, 0), App.Vector(0, 0, 1), 3), False)
sketch8.addGeometry(Part.Circle(App.Vector(15.4116, 16.6101, 0), App.Vector(0, 0, 1), 3), False)
sketch8.addGeometry(Part.Circle(App.Vector(15.4116, 8.6101, 0), App.Vector(0, 0, 1), 3), False)
sketch8.addGeometry(Part.Circle(App.Vector(-0.5884, 8.6101, 0), App.Vector(0, 0, 1), 3), False)
sketch8.addGeometry(Part.Circle(App.Vector(-0.5884, 0.6101, 0), App.Vector(0, 0, 1), 3), False)
sketch8.addGeometry(Part.Circle(App.Vector(7.4116, 0.6101, 0), App.Vector(0, 0, 1), 3), False)
sketch8.addGeometry(Part.Circle(App.Vector(15.4116, 0.6101, 0), App.Vector(0, 0, 1), 3), False)
sketch8.addConstraint(Sketcher.Constraint("Equal", 0, 1))
sketch8.addConstraint(Sketcher.Constraint("Equal", 1, 2))
sketch8.addConstraint(Sketcher.Constraint("Equal", 2, 3))
sketch8.addConstraint(Sketcher.Constraint("Equal", 3, 4))
sketch8.addConstraint(Sketcher.Constraint("Equal", 4, 5))
sketch8.addConstraint(Sketcher.Constraint("Equal", 5, 6))
sketch8.addConstraint(Sketcher.Constraint("Equal", 6, 7))
sketch8.addConstraint(Sketcher.Constraint("Equal", 7, 8))
sketch8.addConstraint(Sketcher.Constraint("Equal", 8, 9))
sketch8.addConstraint(Sketcher.Constraint("Equal", 9, 10))
sketch8.addConstraint(Sketcher.Constraint("Equal", 10, 11))
sketch8.addConstraint(Sketcher.Constraint("Equal", 11, 12))
sketch8.addConstraint(Sketcher.Constraint("Equal", 12, 13))
sketch8.addConstraint(Sketcher.Constraint("Equal", 13, 14))
sketch8.addConstraint(Sketcher.Constraint("Equal", 14, 15))
sketch8.addConstraint(Sketcher.Constraint("Horizontal", 0, 3, 1, 3))
sketch8.addConstraint(Sketcher.Constraint("Horizontal", 1, 3, 2, 3))
sketch8.addConstraint(Sketcher.Constraint("Horizontal", 3, 3, 4, 3))
sketch8.addConstraint(Sketcher.Constraint("Horizontal", 5, 3, 6, 3))
sketch8.addConstraint(Sketcher.Constraint("Horizontal", 6, 3, 7, 3))
sketch8.addConstraint(Sketcher.Constraint("Horizontal", 8, 3, 9, 3))
sketch8.addConstraint(Sketcher.Constraint("Horizontal", 9, 3, 10, 3))
sketch8.addConstraint(Sketcher.Constraint("Horizontal", 11, 3, 12, 3))
sketch8.addConstraint(Sketcher.Constraint("Horizontal", 13, 3, 14, 3))
sketch8.addConstraint(Sketcher.Constraint("Horizontal", 14, 3, 15, 3))
sketch8.addConstraint(Sketcher.Constraint("Vertical", 2, 3, 3, 3))
sketch8.addConstraint(Sketcher.Constraint("Vertical", 0, 3, 4, 3))
sketch8.addConstraint(Sketcher.Constraint("Vertical", 4, 3, 5, 3))
sketch8.addConstraint(Sketcher.Constraint("Vertical", 1, 3, 6, 3))
sketch8.addConstraint(Sketcher.Constraint("Vertical", 3, 3, 7, 3))
sketch8.addConstraint(Sketcher.Constraint("Vertical", 5, 3, 8, 3))
sketch8.addConstraint(Sketcher.Constraint("Vertical", 6, 3, 9, 3))
sketch8.addConstraint(Sketcher.Constraint("Vertical", 7, 3, 10, 3))
sketch8.addConstraint(Sketcher.Constraint("Vertical", 10, 3, 11, 3))
sketch8.addConstraint(Sketcher.Constraint("Vertical", 8, 3, 12, 3))
sketch8.addConstraint(Sketcher.Constraint("Vertical", 12, 3, 13, 3))
sketch8.addConstraint(Sketcher.Constraint("Vertical", 9, 3, 14, 3))
sketch8.addConstraint(Sketcher.Constraint("Vertical", 11, 3, 15, 3))
sketch8.addConstraint(Sketcher.Constraint("Diameter", 0, 6.0))
sketch8.addConstraint(Sketcher.Constraint("DistanceX", 0, 3, 1, 3, 8.0))
sketch8.addConstraint(Sketcher.Constraint("DistanceX", 1, 3, 2, 3, 8.0))
sketch8.addConstraint(Sketcher.Constraint("DistanceY", 2, 3, 3, 3, 8.0))
sketch8.addConstraint(Sketcher.Constraint("DistanceY", 4, 3, 5, 3, 8.0))
sketch8.addConstraint(Sketcher.Constraint("DistanceY", 11, 3, 10, 3, 8.0))
sketch8.addConstraint(Sketcher.Constraint("DistanceY", 13, 3, 12, 3, 8.0))
sketch8.addConstraint(Sketcher.Constraint("DistanceY", -1, 1, 8, 3, 16.61))
sketch8.addConstraint(Sketcher.Constraint("DistanceY", 0, 3, -1, 1, 56.993))
sketch8.addConstraint(Sketcher.Constraint("DistanceX", 0, 3, -1, 1, 0.5884))
sketch8.setExpression("Constraints[38]", "Params.sketch8_diameter")
pocket5 = body.newObject("PartDesign::Pocket", "Pocket004")
pocket5.Profile = sketch8
pocket5.setExpression("Length", "Params.pocket5_length")
pocket5.Reversed = True

sketch9 = body.newObject("Sketcher::SketchObject", "Sketch008")
sketch9.AttachmentSupport = (doc.getObject("YZ_Plane"), [""])
sketch9.MapMode = "FlatFace"
sketch9.AttachmentOffset = App.Placement(App.Vector(0, 0, -5), App.Rotation())
sketch9.addGeometry(Part.LineSegment(App.Vector(-23.7188, -40.1439, 0), App.Vector(-23.7188, -30.9931, 0)), False)
sketch9.addGeometry(Part.LineSegment(App.Vector(-23.7188, -30.9931, 0), App.Vector(36.6984, -30.9931, 0)), False)
sketch9.addGeometry(Part.LineSegment(App.Vector(36.6984, -30.9931, 0), App.Vector(36.6984, -40.1439, 0)), False)
sketch9.addGeometry(Part.LineSegment(App.Vector(36.6984, -40.1439, 0), App.Vector(-23.7188, -40.1439, 0)), False)
sketch9.addConstraint(Sketcher.Constraint("Coincident", 0, 2, 1, 1))
sketch9.addConstraint(Sketcher.Constraint("Coincident", 1, 2, 2, 1))
sketch9.addConstraint(Sketcher.Constraint("Coincident", 2, 2, 3, 1))
sketch9.addConstraint(Sketcher.Constraint("Coincident", 3, 2, 0, 1))
sketch9.addConstraint(Sketcher.Constraint("Vertical", 0))
sketch9.addConstraint(Sketcher.Constraint("Horizontal", 1))
sketch9.addConstraint(Sketcher.Constraint("Vertical", 2))
sketch9.addConstraint(Sketcher.Constraint("Horizontal", 3))
sketch9.addConstraint(Sketcher.Constraint("DistanceX", 1, 1, 1, 2, 60.4172))
sketch9.addConstraint(Sketcher.Constraint("DistanceY", 0, 1, 0, 2, 9.1508))
sketch9.addConstraint(Sketcher.Constraint("DistanceY", 0, 2, -1, 1, 30.993))
sketch9.addConstraint(Sketcher.Constraint("DistanceX", 0, 2, -1, 1, 23.7188))
pocket6 = body.newObject("PartDesign::Pocket", "Pocket005")
pocket6.Profile = sketch9
pocket6.setExpression("Length", "Params.pocket6_length")
pocket6.Reversed = True

sketch10 = body.newObject("Sketcher::SketchObject", "Sketch009")
sketch10.AttachmentSupport = (doc.getObject("XY_Plane"), [""])
sketch10.MapMode = "FlatFace"
sketch10.AttachmentOffset = App.Placement(App.Vector(0, 0, -30.9931), App.Rotation())
sketch10.addGeometry(Part.LineSegment(App.Vector(11.2, 36.2812, 0), App.Vector(0, 36.2812, 0)), False)
sketch10.addGeometry(Part.LineSegment(App.Vector(0, 36.2812, 0), App.Vector(0, -23.7188, 0)), False)
sketch10.addGeometry(Part.LineSegment(App.Vector(0, -23.7188, 0), App.Vector(11.2, -23.7188, 0)), False)
sketch10.addGeometry(Part.LineSegment(App.Vector(11.2, -23.7188, 0), App.Vector(11.2, 36.2812, 0)), False)
sketch10.addConstraint(Sketcher.Constraint("Coincident", 0, 2, 1, 1))
sketch10.addConstraint(Sketcher.Constraint("Coincident", 1, 2, 2, 1))
sketch10.addConstraint(Sketcher.Constraint("Coincident", 2, 2, 3, 1))
sketch10.addConstraint(Sketcher.Constraint("Coincident", 3, 2, 0, 1))
sketch10.addConstraint(Sketcher.Constraint("Horizontal", 0))
sketch10.addConstraint(Sketcher.Constraint("Vertical", 1))
sketch10.addConstraint(Sketcher.Constraint("Horizontal", 2))
sketch10.addConstraint(Sketcher.Constraint("Vertical", 3))
sketch10.addConstraint(Sketcher.Constraint("PointOnObject", 0, 2, -2))
sketch10.addConstraint(Sketcher.Constraint("DistanceY", 1, 2, 1, 1, 60.0))
sketch10.addConstraint(Sketcher.Constraint("DistanceX", 0, 2, 0, 1, 11.2))
sketch10.addConstraint(Sketcher.Constraint("DistanceY", -1, 1, 0, 2, 36.2812))
sketch10.setExpression("Constraints[9]", "Params.sketch10_height")
sketch10.setExpression("Constraints[10]", "Params.sketch10_width")
pocket7 = body.newObject("PartDesign::Pocket", "Pocket006")
pocket7.Profile = sketch10
pocket7.setExpression("Length", "Params.pocket7_length")

sketch11 = body.newObject("Sketcher::SketchObject", "Sketch010")
sketch11.AttachmentSupport = (doc.getObject("YZ_Plane"), [""])
sketch11.MapMode = "FlatFace"
sketch11.AttachmentOffset = App.Placement(App.Vector(0, 0, 11.2), App.Rotation())
sketch11.addGeometry(Part.LineSegment(App.Vector(36.2812, -69.9931, 0), App.Vector(36.2812, -59.9931, 0)), False)
sketch11.addGeometry(Part.LineSegment(App.Vector(36.2812, -59.9931, 0), App.Vector(-23.4462, -59.9931, 0)), False)
sketch11.addGeometry(Part.LineSegment(App.Vector(-23.4462, -59.9931, 0), App.Vector(-23.4462, -69.9931, 0)), False)
sketch11.addGeometry(Part.LineSegment(App.Vector(-23.4462, -69.9931, 0), App.Vector(36.2812, -69.9931, 0)), False)
sketch11.addConstraint(Sketcher.Constraint("Coincident", 0, 2, 1, 1))
sketch11.addConstraint(Sketcher.Constraint("Coincident", 1, 2, 2, 1))
sketch11.addConstraint(Sketcher.Constraint("Coincident", 2, 2, 3, 1))
sketch11.addConstraint(Sketcher.Constraint("Coincident", 3, 2, 0, 1))
sketch11.addConstraint(Sketcher.Constraint("Vertical", 0))
sketch11.addConstraint(Sketcher.Constraint("Horizontal", 1))
sketch11.addConstraint(Sketcher.Constraint("Vertical", 2))
sketch11.addConstraint(Sketcher.Constraint("Horizontal", 3))
sketch11.addConstraint(Sketcher.Constraint("DistanceY", 0, 1, 0, 2, 10.0))
sketch11.addConstraint(Sketcher.Constraint("DistanceX", 1, 2, 1, 1, 59.7274))
sketch11.addConstraint(Sketcher.Constraint("DistanceY", 0, 2, -1, 1, 59.993))
sketch11.addConstraint(Sketcher.Constraint("DistanceX", -1, 1, 0, 2, 36.2812))
sketch11.setExpression("Constraints[8]", "Params.sketch11_height")
pocket8 = body.newObject("PartDesign::Pocket", "Pocket007")
pocket8.Profile = sketch11
pocket8.setExpression("Length", "Params.pocket8_length")

sketch12 = body.newObject("Sketcher::SketchObject", "Sketch011")
sketch12.AttachmentSupport = (doc.getObject("YZ_Plane"), [""])
sketch12.MapMode = "FlatFace"
sketch12.AttachmentOffset = App.Placement(App.Vector(0, 0, 11.2), App.Rotation())
sketch12.addGeometry(Part.LineSegment(App.Vector(-23.4442, 20.0046, 0), App.Vector(36.2832, 20.0046, 0)), False)
sketch12.addGeometry(Part.LineSegment(App.Vector(36.2832, 20.0046, 0), App.Vector(36.2832, 30.0046, 0)), False)
sketch12.addGeometry(Part.LineSegment(App.Vector(36.2832, 30.0046, 0), App.Vector(-23.4442, 30.0046, 0)), False)
sketch12.addGeometry(Part.LineSegment(App.Vector(-23.4442, 30.0046, 0), App.Vector(-23.4442, 20.0046, 0)), False)
sketch12.addConstraint(Sketcher.Constraint("Coincident", 0, 2, 1, 1))
sketch12.addConstraint(Sketcher.Constraint("Coincident", 1, 2, 2, 1))
sketch12.addConstraint(Sketcher.Constraint("Coincident", 2, 2, 3, 1))
sketch12.addConstraint(Sketcher.Constraint("Coincident", 3, 2, 0, 1))
sketch12.addConstraint(Sketcher.Constraint("Horizontal", 0))
sketch12.addConstraint(Sketcher.Constraint("Vertical", 1))
sketch12.addConstraint(Sketcher.Constraint("Horizontal", 2))
sketch12.addConstraint(Sketcher.Constraint("Vertical", 3))
sketch12.addConstraint(Sketcher.Constraint("DistanceY", 1, 1, 1, 2, 10.0))
sketch12.addConstraint(Sketcher.Constraint("DistanceX", 0, 1, 0, 2, 59.7274))
sketch12.addConstraint(Sketcher.Constraint("DistanceX", -1, 1, 0, 2, 36.2832))
sketch12.addConstraint(Sketcher.Constraint("DistanceY", -1, 1, 0, 2, 20.0046))
sketch12.setExpression("Constraints[8]", "Params.sketch12_height")
pocket9 = body.newObject("PartDesign::Pocket", "Pocket008")
pocket9.Profile = sketch12
pocket9.setExpression("Length", "Params.pocket9_length")

sketch13 = body.newObject("Sketcher::SketchObject", "Sketch012")
sketch13.AttachmentSupport = (doc.getObject("YZ_Plane"), [""])
sketch13.MapMode = "FlatFace"
sketch13.AttachmentOffset = App.Placement(App.Vector(0, 0, 15), App.Rotation())
sketch13.addGeometry(Part.LineSegment(App.Vector(65.2751, 5.813, 0), App.Vector(46.3829, 5.813, 0)), False)
sketch13.addGeometry(Part.LineSegment(App.Vector(46.3829, 5.813, 0), App.Vector(46.3829, -44.8085, 0)), False)
sketch13.addGeometry(Part.LineSegment(App.Vector(46.3829, -44.8085, 0), App.Vector(65.2751, -44.8085, 0)), False)
sketch13.addGeometry(Part.LineSegment(App.Vector(65.2751, -44.8085, 0), App.Vector(65.2751, 5.813, 0)), False)
sketch13.addConstraint(Sketcher.Constraint("Coincident", 0, 2, 1, 1))
sketch13.addConstraint(Sketcher.Constraint("Coincident", 1, 2, 2, 1))
sketch13.addConstraint(Sketcher.Constraint("Coincident", 2, 2, 3, 1))
sketch13.addConstraint(Sketcher.Constraint("Coincident", 3, 2, 0, 1))
sketch13.addConstraint(Sketcher.Constraint("Horizontal", 0))
sketch13.addConstraint(Sketcher.Constraint("Vertical", 1))
sketch13.addConstraint(Sketcher.Constraint("Horizontal", 2))
sketch13.addConstraint(Sketcher.Constraint("Vertical", 3))
sketch13.addConstraint(Sketcher.Constraint("DistanceX", 0, 2, 0, 1, 18.8922))
sketch13.addConstraint(Sketcher.Constraint("DistanceY", 1, 2, 1, 1, 50.6215))
sketch13.addConstraint(Sketcher.Constraint("DistanceX", -1, 1, 0, 2, 46.383))
sketch13.addConstraint(Sketcher.Constraint("DistanceY", -1, 1, 0, 2, 5.813))
pocket10 = body.newObject("PartDesign::Pocket", "Pocket009")
pocket10.Profile = sketch13
pocket10.setExpression("Length", "Params.pocket10_length")

doc.recompute()
